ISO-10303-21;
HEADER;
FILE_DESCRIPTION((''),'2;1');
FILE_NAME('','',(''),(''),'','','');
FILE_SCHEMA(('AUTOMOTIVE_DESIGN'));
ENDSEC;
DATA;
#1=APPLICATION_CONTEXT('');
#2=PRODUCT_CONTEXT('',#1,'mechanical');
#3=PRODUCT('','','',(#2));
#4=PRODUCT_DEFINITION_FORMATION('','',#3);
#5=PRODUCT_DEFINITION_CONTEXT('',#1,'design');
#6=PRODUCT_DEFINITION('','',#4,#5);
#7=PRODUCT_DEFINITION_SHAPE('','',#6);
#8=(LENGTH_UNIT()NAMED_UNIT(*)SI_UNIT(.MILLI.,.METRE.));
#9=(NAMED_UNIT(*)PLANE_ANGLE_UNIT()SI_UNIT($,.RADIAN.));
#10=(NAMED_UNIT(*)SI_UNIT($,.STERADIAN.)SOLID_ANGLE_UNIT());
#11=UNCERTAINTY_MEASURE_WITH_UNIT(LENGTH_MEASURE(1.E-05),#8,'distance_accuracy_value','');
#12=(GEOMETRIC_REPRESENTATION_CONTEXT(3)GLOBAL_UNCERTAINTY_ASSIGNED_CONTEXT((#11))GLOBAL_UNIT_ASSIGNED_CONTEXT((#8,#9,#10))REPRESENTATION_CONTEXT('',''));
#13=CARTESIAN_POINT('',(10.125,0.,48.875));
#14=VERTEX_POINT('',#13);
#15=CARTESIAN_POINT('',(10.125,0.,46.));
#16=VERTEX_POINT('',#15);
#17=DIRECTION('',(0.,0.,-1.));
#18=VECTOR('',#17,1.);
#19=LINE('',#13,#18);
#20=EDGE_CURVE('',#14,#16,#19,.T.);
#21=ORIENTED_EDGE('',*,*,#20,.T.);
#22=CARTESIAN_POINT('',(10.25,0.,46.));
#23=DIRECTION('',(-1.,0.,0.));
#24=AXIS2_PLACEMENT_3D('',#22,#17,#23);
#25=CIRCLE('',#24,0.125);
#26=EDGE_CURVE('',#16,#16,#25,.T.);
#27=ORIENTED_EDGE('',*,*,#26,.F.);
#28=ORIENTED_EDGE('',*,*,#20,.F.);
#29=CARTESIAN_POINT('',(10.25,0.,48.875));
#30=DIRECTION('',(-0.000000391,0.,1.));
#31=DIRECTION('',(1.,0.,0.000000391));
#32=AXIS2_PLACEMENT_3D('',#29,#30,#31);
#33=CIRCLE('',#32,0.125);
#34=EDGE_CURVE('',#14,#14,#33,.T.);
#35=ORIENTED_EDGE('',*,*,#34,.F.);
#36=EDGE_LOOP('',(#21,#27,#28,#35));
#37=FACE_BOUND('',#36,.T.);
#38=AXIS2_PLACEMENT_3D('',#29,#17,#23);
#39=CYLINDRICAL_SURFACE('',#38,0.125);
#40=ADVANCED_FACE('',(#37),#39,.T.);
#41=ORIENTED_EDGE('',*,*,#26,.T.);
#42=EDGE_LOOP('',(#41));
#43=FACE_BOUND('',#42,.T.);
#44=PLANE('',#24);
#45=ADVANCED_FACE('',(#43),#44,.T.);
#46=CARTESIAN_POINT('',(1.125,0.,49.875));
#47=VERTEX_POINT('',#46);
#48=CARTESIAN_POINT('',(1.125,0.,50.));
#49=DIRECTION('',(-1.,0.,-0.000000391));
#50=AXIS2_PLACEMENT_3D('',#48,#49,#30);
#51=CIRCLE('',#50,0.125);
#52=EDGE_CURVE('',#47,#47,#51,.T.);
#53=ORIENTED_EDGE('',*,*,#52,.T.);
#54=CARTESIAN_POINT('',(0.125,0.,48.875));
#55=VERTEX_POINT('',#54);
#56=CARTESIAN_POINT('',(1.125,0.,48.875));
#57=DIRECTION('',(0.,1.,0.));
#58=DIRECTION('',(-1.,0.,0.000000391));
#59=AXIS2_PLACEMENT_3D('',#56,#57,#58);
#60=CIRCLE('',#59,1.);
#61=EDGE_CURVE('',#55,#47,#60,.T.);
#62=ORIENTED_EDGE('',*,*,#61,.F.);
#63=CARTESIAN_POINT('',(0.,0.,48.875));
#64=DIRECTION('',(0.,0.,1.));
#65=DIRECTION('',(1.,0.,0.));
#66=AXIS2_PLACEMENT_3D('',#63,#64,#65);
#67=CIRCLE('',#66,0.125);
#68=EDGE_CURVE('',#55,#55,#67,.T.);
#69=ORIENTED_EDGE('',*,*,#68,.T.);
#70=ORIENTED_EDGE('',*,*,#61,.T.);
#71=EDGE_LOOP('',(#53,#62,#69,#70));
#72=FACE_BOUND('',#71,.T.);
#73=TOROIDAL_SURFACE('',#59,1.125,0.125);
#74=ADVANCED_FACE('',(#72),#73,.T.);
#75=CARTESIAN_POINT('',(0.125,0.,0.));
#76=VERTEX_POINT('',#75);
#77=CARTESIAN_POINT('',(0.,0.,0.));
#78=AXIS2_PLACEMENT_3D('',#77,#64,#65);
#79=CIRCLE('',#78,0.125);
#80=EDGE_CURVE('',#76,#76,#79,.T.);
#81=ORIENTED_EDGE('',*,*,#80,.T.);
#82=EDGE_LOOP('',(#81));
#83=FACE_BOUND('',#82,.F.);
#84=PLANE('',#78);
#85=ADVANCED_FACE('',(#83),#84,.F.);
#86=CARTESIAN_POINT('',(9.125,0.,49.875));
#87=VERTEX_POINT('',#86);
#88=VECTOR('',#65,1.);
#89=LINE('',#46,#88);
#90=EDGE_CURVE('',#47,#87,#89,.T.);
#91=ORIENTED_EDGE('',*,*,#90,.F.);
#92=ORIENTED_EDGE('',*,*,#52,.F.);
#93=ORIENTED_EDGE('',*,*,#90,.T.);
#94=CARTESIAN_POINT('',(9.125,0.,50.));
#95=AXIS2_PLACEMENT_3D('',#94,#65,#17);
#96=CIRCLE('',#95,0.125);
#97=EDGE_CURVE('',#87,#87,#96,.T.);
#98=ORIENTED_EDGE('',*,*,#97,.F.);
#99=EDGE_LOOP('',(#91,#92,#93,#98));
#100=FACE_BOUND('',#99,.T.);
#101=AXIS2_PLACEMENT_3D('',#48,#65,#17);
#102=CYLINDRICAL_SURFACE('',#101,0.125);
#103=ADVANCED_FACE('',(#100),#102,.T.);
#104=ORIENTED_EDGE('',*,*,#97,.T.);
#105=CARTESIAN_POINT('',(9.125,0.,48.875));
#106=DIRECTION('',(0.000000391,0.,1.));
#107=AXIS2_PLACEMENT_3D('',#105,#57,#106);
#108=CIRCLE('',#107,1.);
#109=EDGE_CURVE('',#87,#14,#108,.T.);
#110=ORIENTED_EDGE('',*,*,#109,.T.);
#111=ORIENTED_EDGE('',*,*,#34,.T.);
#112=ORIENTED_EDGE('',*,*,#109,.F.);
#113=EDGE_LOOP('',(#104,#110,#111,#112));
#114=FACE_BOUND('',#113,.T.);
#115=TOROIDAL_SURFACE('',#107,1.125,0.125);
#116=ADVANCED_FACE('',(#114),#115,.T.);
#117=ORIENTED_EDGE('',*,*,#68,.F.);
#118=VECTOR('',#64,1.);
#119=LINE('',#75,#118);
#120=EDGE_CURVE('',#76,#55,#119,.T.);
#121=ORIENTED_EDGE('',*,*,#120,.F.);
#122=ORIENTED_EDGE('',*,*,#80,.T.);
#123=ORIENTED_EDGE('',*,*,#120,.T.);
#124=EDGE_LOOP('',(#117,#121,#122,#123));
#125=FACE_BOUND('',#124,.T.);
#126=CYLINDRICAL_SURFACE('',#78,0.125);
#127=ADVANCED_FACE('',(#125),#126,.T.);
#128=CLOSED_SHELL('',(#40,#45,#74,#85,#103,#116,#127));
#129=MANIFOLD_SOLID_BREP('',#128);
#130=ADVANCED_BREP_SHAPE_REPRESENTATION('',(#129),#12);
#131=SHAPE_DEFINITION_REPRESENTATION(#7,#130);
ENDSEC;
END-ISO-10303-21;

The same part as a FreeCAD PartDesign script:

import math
import FreeCAD as App
import Part
import Sketcher
from FreeCAD import Vector

doc = App.newDocument("Part")
body = doc.addObject("PartDesign::Body", "Body")

# Sketch on XY plane
sketch1 = body.newObject("Sketcher::SketchObject", "Sketch")
sketch1.AttachmentSupport = (doc.getObject("XY_Plane"), [""])
sketch1.MapMode = "FlatFace"
sketch1.addGeometry(Part.Circle(Vector(0, 0, 0), Vector(0, 0, 1), 0.12), False)
sketch1.addConstraint([
    Sketcher.Constraint("Coincident", 0, 3, -1, 1),
    Sketcher.Constraint("Diameter", 0, 0.25),
])

# Sketch on XZ plane
sketch2 = body.newObject("Sketcher::SketchObject", "Sketch001")
sketch2.AttachmentSupport = (doc.getObject("XZ_Plane"), [""])
sketch2.MapMode = "FlatFace"
sketch2.addGeometry([
    Part.LineSegment(Vector(0, 0, 0), Vector(0, 48.9, 0)),  # 0
    Part.ArcOfCircle(Part.Circle(Vector(1.1, 48.9, 0), Vector(0, 0, 1), 1.1), math.radians(90), math.radians(180)),  # 1
    Part.LineSegment(Vector(1.1, 50, 0), Vector(9.1, 50, 0)),  # 2
    Part.ArcOfCircle(Part.Circle(Vector(9.1, 48.9, 0), Vector(0, 0, 1), 1.1), math.radians(0), math.radians(90)),  # 3
    Part.LineSegment(Vector(10.2, 48.9, 0), Vector(10.2, 46, 0)),  # 4
], False)
sketch2.addConstraint([
    Sketcher.Constraint("Tangent", 0, 2, 1, 2),
    Sketcher.Constraint("Tangent", 1, 1, 2, 1),
    Sketcher.Constraint("Tangent", 2, 2, 3, 2),
    Sketcher.Constraint("Tangent", 3, 1, 4, 1),
    Sketcher.Constraint("Vertical", 0),
    Sketcher.Constraint("Horizontal", 2),
    Sketcher.Constraint("Vertical", 4),
    Sketcher.Constraint("Coincident", 0, 1, -1, 1),
    Sketcher.Constraint("Equal", 1, 3),
    Sketcher.Constraint("DistanceX", 2, 1, 2, 2, 8.0),
    Sketcher.Constraint("DistanceY", -1, 1, 1, 1, 50.0),
    Sketcher.Constraint("DistanceY", -1, 1, 4, 2, 46.0),
    Sketcher.Constraint("Radius", 1, 1.125),
])
doc.recompute()

additivepipe = body.newObject("PartDesign::AdditivePipe", "AdditivePipe")
additivepipe.Profile = sketch1
additivepipe.Spine = (sketch2, ["Edge1", "Edge2", "Edge3", "Edge4", "Edge5"])

doc.recompute()
